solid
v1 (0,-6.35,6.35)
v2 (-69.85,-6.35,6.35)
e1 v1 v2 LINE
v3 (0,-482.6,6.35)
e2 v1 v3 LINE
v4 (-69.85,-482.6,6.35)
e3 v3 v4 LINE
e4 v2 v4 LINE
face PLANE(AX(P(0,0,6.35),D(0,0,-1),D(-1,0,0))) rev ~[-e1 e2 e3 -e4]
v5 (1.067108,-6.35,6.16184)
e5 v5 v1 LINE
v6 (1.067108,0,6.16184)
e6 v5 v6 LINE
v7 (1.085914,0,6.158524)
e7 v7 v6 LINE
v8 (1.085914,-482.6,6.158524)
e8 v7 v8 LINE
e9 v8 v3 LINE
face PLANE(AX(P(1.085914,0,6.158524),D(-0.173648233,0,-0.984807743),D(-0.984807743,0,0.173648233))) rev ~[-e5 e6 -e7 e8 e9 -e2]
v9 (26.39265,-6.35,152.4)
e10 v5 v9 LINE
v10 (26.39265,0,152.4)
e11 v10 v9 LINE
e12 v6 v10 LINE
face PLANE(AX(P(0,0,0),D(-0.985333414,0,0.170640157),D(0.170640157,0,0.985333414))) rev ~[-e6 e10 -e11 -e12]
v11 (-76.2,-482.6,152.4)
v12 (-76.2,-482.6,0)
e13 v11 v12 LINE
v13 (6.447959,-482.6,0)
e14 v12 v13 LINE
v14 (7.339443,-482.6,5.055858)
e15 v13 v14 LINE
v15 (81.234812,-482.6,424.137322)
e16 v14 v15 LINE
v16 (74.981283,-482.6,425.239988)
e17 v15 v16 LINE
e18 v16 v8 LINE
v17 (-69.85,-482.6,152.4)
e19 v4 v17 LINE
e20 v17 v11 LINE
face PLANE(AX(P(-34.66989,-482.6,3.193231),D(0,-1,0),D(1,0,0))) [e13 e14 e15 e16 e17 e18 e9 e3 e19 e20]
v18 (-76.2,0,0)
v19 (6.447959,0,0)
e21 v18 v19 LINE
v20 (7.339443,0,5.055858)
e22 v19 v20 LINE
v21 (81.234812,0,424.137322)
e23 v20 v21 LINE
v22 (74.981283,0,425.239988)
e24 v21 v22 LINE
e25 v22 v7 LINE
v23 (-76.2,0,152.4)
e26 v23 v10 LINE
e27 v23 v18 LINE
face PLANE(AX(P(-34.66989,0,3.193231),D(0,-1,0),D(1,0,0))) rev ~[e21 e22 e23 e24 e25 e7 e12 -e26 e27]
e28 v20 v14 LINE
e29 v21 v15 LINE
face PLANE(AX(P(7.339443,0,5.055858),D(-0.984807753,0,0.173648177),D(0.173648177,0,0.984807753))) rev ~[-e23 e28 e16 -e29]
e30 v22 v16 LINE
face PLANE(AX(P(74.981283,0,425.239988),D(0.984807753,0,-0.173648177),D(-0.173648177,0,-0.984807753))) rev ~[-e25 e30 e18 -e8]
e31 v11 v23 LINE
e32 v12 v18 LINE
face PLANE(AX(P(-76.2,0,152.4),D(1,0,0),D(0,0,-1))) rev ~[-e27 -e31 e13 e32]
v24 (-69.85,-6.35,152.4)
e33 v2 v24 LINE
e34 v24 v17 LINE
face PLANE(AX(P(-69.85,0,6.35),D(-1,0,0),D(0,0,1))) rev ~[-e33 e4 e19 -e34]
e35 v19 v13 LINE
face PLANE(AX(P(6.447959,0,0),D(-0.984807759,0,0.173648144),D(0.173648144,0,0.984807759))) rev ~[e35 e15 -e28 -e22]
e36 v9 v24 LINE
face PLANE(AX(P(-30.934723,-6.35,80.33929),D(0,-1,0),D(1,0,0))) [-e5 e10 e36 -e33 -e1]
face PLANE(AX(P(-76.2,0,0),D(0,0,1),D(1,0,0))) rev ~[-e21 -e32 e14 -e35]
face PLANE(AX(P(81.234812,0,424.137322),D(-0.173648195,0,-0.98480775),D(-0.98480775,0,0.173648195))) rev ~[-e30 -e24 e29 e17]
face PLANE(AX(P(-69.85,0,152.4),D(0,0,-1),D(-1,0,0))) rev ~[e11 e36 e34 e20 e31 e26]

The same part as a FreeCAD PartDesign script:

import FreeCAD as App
import Part
import Sketcher

V = App.Vector
Q = App.Units.Quantity

doc = App.newDocument("Part")
params = doc.addObject("Spreadsheet::Sheet", "Params")
for row, (alias, value) in enumerate([
    ("sketch1_height", "6 in"),
    ("sketch1_width", "2.75 in"),
    ("sketch1_height2", "5.75 in"),
    ("sketch1_length", "0.25 in"),
    ("pad1_length", "19 in"),
    ("sketch2_width", "3 in"),
    ("sketch2_height", "6 in"),
    ("pad2_length", "0.25 in"),
], start=1):
    params.set(f"A{row}", alias)
    params.set(f"B{row}", "=" + value)
    params.setAlias(f"B{row}", alias)

body = doc.addObject("PartDesign::Body", "Body")

# Sketch on XZ plane
sketch1 = body.newObject("Sketcher::SketchObject", "Sketch")
sketch1.AttachmentSupport = (doc.getObject("XZ_Plane"), [""])
sketch1.MapMode = "FlatFace"
sketch1.addGeometry(Part.LineSegment(V(6.447959, 0, 0), V(7.339443, 5.055858, 0)), False)
sketch1.addGeometry(Part.LineSegment(V(7.339443, 5.055858, 0), V(81.234812, 424.137322, 0)), False)
sketch1.addGeometry(Part.LineSegment(V(81.234812, 424.137322, 0), V(74.981283, 425.239988, 0)), False)
sketch1.addGeometry(Part.LineSegment(V(74.981283, 425.239988, 0), V(1.085914, 6.158524, 0)), False)
sketch1.addGeometry(Part.LineSegment(V(1.085914, 6.158524, 0), V(0, 6.35, 0)), False)
sketch1.addGeometry(Part.LineSegment(V(0, 6.35, 0), V(-69.85, 6.35, 0)), False)
sketch1.addGeometry(Part.LineSegment(V(-69.85, 6.35, 0), V(-69.85, 152.4, 0)), False)
sketch1.addGeometry(Part.LineSegment(V(-69.85, 152.4, 0), V(-76.2, 152.4, 0)), False)
sketch1.addGeometry(Part.LineSegment(V(-76.2, 152.4, 0), V(-76.2, 0, 0)), False)
sketch1.addGeometry(Part.LineSegment(V(-76.2, 0, 0), V(6.447959, 0, 0)), False)
sketch1.addConstraint(Sketcher.Constraint("Coincident", 0, 2, 1, 1))
sketch1.addConstraint(Sketcher.Constraint("Coincident", 1, 2, 2, 1))
sketch1.addConstraint(Sketcher.Constraint("Coincident", 2, 2, 3, 1))
sketch1.addConstraint(Sketcher.Constraint("Coincident", 3, 2, 4, 1))
sketch1.addConstraint(Sketcher.Constraint("Coincident", 4, 2, 5, 1))
sketch1.addConstraint(Sketcher.Constraint("Coincident", 5, 2, 6, 1))
sketch1.addConstraint(Sketcher.Constraint("Coincident", 6, 2, 7, 1))
sketch1.addConstraint(Sketcher.Constraint("Coincident", 7, 2, 8, 1))
sketch1.addConstraint(Sketcher.Constraint("Coincident", 8, 2, 9, 1))
sketch1.addConstraint(Sketcher.Constraint("Coincident", 9, 2, 0, 1))
sketch1.addConstraint(Sketcher.Constraint("Horizontal", 5))
sketch1.addConstraint(Sketcher.Constraint("Vertical", 6))
sketch1.addConstraint(Sketcher.Constraint("Horizontal", 7))
sketch1.addConstraint(Sketcher.Constraint("Vertical", 8))
sketch1.addConstraint(Sketcher.Constraint("Horizontal", 9))
sketch1.addConstraint(Sketcher.Constraint("PointOnObject", 4, 2, -2))
sketch1.addConstraint(Sketcher.Constraint("PointOnObject", 8, 2, -1))
sketch1.addConstraint(Sketcher.Constraint("Parallel", 0, 1))
sketch1.addConstraint(Sketcher.Constraint("Perpendicular", 1, 2))
sketch1.addConstraint(Sketcher.Constraint("Perpendicular", 2, 3))
sketch1.addConstraint(Sketcher.Constraint("Perpendicular", 3, 4))
sketch1.addConstraint(Sketcher.Constraint("Equal", 1, 3))
sketch1.addConstraint(Sketcher.Constraint("DistanceY", 8, 2, 8, 1, Q("6 in")))
sketch1.addConstraint(Sketcher.Constraint("DistanceX", 7, 2, -1, 1, Q("3 in")))
sketch1.addConstraint(Sketcher.Constraint("Angle", 0, Q("80.000002 deg")))
sketch1.addConstraint(Sketcher.Constraint("DistanceX", 5, 2, 5, 1, Q("2.75 in")))
sketch1.addConstraint(Sketcher.Constraint("DistanceY", 6, 1, 6, 2, Q("5.75 in")))
sketch1.addConstraint(Sketcher.Constraint("Distance", 2, Q("0.25 in")))
sketch1.addConstraint(Sketcher.Constraint("DistanceX", 9, 1, 9, 2, 82.647959))
sketch1.addConstraint(Sketcher.Constraint("DistanceX", 3, 2, 1, 2, 80.148898))
sketch1.setExpression("Constraints[22]", "Params.sketch1_height")
sketch1.setExpression("Constraints[25]", "Params.sketch1_width")
sketch1.setExpression("Constraints[26]", "Params.sketch1_height2")
sketch1.setExpression("Constraints[27]", "Params.sketch1_length")
pad1 = body.newObject("PartDesign::Pad", "Pad")
pad1.Profile = sketch1
pad1.setExpression("Length", "Params.pad1_length")

# Sketch on XZ plane
sketch2 = body.newObject("Sketcher::SketchObject", "Sketch001")
sketch2.AttachmentSupport = (doc.getObject("XZ_Plane"), [""])
sketch2.MapMode = "FlatFace"
sketch2.addGeometry(Part.LineSegment(V(-76.2, 0, 0), V(0, 0, 0)), False)
sketch2.addGeometry(Part.LineSegment(V(0, 0, 0), V(26.39265, 152.4, 0)), False)
sketch2.addGeometry(Part.LineSegment(V(26.39265, 152.4, 0), V(-76.2, 152.4, 0)), False)
sketch2.addGeometry(Part.LineSegment(V(-76.2, 152.4, 0), V(-76.2, 0, 0)), False)
sketch2.addConstraint(Sketcher.Constraint("Coincident", 0, 2, 1, 1))
sketch2.addConstraint(Sketcher.Constraint("Coincident", 1, 2, 2, 1))
sketch2.addConstraint(Sketcher.Constraint("Coincident", 2, 2, 3, 1))
sketch2.addConstraint(Sketcher.Constraint("Coincident", 3, 2, 0, 1))
sketch2.addConstraint(Sketcher.Constraint("Horizontal", 0))
sketch2.addConstraint(Sketcher.Constraint("Horizontal", 2))
sketch2.addConstraint(Sketcher.Constraint("Vertical", 3))
sketch2.addConstraint(Sketcher.Constraint("Coincident", 0, 2, -1, 1))
sketch2.addConstraint(Sketcher.Constraint("DistanceX", 0, 1, 0, 2, Q("3 in")))
sketch2.addConstraint(Sketcher.Constraint("DistanceY", 3, 2, 3, 1, Q("6 in")))
sketch2.addConstraint(Sketcher.Constraint("DistanceX", 2, 2, 2, 1, 102.59265))
sketch2.setExpression("Constraints[8]", "Params.sketch2_width")
sketch2.setExpression("Constraints[9]", "Params.sketch2_height")
pad2 = body.newObject("PartDesign::Pad", "Pad001")
pad2.Profile = sketch2
pad2.setExpression("Length", "Params.pad2_length")

doc.recompute()
